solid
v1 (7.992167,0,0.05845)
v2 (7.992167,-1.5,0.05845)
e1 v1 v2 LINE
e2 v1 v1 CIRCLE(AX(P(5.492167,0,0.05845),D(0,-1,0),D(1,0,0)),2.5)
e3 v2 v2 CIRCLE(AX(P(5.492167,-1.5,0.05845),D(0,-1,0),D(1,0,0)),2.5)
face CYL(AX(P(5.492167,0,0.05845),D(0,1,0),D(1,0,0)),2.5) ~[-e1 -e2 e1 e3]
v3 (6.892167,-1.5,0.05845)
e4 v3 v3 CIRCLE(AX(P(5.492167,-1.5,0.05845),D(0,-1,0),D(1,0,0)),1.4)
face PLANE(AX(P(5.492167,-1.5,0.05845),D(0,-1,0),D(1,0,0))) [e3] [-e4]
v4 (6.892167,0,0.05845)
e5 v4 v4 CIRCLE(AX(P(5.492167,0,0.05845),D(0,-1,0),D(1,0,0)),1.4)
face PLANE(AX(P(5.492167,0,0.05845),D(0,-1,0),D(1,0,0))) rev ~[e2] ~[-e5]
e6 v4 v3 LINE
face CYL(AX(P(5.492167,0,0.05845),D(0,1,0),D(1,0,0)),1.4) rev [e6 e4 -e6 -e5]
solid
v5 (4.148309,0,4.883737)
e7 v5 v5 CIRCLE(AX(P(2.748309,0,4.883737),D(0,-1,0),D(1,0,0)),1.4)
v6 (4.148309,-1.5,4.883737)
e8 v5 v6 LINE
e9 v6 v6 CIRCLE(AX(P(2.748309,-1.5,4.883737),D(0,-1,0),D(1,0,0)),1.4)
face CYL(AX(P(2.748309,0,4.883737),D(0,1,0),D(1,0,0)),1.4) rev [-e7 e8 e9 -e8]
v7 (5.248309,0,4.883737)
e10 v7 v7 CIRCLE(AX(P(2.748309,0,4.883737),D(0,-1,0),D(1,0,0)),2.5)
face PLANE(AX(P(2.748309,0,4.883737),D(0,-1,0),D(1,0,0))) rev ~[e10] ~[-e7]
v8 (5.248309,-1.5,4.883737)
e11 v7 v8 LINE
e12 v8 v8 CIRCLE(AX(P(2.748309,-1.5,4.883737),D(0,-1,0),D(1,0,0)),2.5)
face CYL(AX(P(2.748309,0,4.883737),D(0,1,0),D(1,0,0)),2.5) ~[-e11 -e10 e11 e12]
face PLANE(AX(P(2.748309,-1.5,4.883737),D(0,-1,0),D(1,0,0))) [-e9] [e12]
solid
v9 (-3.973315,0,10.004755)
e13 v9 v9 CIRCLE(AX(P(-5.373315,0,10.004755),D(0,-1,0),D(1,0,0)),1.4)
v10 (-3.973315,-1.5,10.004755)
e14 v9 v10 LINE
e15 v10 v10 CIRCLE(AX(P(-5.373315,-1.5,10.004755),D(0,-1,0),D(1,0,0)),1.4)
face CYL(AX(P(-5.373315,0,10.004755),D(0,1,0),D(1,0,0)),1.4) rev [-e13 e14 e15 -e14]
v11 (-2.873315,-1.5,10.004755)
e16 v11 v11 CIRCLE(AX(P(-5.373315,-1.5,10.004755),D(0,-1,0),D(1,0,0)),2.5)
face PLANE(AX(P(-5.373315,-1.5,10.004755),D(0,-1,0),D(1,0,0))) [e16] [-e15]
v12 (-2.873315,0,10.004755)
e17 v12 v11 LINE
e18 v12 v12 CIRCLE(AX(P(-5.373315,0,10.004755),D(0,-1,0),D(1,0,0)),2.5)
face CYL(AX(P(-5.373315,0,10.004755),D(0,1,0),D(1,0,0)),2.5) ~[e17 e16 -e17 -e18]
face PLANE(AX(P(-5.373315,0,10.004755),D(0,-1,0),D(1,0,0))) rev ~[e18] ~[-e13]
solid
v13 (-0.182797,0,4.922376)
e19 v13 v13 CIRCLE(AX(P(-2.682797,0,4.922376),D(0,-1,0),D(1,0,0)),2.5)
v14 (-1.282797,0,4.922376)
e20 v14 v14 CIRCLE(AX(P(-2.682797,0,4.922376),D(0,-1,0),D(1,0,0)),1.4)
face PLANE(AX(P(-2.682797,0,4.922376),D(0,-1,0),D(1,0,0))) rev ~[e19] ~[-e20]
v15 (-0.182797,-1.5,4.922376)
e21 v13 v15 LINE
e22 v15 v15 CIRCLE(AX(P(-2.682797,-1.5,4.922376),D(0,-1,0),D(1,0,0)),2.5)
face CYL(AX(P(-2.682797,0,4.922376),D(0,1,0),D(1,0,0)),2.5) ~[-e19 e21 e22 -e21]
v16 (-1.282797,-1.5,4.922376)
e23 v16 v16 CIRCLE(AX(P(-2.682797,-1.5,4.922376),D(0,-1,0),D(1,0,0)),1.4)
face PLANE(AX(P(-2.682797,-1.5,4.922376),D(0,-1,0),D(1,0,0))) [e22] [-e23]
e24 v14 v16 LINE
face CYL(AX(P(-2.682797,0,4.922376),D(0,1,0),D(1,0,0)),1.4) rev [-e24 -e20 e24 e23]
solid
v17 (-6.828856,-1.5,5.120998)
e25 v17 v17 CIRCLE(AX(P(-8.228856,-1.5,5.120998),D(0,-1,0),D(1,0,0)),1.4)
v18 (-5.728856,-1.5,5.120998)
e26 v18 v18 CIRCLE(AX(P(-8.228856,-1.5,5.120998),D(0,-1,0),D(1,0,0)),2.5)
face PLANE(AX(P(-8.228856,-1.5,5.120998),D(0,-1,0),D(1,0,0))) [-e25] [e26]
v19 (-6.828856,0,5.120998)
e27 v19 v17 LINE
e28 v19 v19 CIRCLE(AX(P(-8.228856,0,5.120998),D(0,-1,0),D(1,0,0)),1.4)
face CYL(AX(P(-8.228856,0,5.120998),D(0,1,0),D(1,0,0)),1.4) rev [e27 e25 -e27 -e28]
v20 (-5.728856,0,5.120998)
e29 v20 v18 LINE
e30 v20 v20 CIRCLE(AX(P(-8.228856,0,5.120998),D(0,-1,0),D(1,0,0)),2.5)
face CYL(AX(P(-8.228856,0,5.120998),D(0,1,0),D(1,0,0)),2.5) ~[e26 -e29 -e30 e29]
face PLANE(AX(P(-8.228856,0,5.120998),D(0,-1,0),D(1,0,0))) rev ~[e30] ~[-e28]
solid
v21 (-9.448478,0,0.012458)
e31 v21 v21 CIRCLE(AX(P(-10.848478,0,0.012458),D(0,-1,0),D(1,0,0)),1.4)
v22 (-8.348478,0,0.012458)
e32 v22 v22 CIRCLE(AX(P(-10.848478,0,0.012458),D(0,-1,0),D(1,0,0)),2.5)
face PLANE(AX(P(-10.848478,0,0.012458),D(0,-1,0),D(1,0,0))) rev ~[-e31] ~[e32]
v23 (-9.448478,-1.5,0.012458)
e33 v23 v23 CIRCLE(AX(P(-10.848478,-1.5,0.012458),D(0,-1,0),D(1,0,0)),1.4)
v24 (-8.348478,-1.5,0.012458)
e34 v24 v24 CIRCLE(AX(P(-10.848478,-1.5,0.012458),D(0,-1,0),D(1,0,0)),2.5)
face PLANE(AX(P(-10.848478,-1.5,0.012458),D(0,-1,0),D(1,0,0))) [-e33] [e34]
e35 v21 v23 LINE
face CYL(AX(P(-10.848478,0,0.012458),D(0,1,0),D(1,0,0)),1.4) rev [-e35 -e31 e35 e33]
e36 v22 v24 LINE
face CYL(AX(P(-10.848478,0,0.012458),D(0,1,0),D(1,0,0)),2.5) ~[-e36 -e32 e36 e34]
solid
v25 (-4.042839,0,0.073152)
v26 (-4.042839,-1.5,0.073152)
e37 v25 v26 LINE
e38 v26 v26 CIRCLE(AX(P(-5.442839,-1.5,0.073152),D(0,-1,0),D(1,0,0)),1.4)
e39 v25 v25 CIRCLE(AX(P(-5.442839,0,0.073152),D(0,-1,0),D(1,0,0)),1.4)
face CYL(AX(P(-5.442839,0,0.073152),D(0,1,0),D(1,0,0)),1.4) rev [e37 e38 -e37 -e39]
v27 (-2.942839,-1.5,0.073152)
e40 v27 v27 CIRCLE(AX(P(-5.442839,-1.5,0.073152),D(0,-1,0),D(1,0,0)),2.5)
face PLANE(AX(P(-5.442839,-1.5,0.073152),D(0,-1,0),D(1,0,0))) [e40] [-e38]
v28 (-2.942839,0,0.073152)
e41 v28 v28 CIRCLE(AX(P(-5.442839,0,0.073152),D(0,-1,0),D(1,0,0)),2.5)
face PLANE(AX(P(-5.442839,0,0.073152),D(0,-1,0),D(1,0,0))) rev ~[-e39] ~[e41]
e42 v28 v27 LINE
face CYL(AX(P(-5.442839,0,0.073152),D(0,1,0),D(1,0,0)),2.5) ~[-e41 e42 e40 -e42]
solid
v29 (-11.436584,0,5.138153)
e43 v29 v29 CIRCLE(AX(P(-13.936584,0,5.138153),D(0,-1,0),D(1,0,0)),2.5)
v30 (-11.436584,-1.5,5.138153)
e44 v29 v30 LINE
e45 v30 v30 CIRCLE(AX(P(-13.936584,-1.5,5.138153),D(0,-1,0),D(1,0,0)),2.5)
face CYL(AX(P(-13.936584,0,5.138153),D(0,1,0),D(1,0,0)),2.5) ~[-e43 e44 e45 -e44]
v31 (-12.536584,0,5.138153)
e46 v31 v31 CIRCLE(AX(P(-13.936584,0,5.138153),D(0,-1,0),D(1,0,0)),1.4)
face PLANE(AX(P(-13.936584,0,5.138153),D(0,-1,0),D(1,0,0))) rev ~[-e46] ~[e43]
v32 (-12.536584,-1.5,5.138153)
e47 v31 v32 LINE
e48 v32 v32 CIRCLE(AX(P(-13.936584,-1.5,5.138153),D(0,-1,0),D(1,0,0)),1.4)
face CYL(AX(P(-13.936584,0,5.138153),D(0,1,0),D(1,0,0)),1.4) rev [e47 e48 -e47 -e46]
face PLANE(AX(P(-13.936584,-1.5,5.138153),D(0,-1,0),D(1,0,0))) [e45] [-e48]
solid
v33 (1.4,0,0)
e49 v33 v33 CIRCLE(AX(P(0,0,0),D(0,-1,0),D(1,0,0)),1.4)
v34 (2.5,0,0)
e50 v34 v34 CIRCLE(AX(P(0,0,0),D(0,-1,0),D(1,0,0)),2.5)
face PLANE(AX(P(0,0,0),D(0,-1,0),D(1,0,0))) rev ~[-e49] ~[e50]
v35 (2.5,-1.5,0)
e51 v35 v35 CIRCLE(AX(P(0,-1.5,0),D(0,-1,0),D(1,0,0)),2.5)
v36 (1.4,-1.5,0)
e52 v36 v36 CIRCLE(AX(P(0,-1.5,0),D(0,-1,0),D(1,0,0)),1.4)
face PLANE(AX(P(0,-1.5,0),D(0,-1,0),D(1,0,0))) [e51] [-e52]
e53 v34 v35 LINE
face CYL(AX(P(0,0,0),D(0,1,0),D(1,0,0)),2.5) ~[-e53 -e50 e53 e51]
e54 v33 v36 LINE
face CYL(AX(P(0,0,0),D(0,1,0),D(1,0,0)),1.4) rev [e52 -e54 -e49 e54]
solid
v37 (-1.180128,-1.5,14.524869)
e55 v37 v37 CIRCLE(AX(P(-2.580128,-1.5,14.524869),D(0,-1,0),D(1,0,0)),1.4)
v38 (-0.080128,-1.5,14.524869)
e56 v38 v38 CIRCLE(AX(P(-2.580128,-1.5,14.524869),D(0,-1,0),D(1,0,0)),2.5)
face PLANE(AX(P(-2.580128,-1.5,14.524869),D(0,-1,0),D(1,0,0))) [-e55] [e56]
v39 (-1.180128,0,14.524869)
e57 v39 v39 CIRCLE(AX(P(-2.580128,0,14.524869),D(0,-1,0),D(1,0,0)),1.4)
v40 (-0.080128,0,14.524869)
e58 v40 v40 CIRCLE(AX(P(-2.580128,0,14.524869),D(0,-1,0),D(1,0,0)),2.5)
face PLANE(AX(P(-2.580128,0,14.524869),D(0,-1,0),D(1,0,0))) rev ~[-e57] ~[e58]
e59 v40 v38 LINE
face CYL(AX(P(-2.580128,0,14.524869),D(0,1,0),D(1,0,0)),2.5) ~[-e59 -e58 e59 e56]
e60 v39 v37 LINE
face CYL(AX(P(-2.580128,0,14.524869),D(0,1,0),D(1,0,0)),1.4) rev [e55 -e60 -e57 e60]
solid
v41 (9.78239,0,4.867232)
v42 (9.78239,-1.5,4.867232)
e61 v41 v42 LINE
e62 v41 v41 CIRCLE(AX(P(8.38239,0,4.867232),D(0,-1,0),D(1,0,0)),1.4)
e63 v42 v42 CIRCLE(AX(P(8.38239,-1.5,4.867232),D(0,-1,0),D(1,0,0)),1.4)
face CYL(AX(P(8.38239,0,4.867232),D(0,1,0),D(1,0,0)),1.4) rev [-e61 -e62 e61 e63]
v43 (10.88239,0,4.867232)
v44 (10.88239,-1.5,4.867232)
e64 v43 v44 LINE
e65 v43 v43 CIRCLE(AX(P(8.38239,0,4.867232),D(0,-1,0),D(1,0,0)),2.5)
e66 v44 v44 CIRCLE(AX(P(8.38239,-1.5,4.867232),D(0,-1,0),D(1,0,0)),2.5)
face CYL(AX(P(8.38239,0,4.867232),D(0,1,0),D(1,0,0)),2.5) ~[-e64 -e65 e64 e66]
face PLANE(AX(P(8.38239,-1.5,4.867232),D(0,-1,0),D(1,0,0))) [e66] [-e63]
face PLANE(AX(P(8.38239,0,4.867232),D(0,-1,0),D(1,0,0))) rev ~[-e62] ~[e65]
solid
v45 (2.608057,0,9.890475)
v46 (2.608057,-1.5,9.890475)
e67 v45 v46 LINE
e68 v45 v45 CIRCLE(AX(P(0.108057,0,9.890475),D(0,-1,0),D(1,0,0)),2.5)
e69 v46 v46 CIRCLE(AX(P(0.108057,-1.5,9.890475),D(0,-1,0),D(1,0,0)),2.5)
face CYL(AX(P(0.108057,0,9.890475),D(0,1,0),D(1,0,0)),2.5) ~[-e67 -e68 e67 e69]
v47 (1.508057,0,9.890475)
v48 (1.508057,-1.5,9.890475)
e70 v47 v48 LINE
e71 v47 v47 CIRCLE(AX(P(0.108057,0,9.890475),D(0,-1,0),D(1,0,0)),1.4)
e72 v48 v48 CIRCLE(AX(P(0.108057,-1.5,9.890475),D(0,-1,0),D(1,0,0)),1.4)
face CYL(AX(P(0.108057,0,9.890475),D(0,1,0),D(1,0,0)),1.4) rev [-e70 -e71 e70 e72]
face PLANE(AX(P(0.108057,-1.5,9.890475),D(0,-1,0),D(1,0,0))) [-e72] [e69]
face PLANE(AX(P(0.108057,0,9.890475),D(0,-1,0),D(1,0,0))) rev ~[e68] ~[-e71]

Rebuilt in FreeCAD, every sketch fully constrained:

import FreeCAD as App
import Part
import Sketcher
Q = App.Units.Quantity

doc = App.newDocument("Part")
body = doc.addObject("PartDesign::Body", "Body")
body.AllowCompound = True

# Sketch on XZ plane
sketch1 = body.newObject("Sketcher::SketchObject", "Sketch")
sketch1.AttachmentSupport = (doc.getObject("XZ_Plane"), [""])
sketch1.MapMode = "FlatFace"
sketch1.addGeometry([
    Part.Circle(App.Vector(-13.9, 5.1, 0), App.Vector(0, 0, 1), 2.5),  # 0
    Part.Circle(App.Vector(-13.9, 5.1, 0), App.Vector(0, 0, 1), 1.4),  # 1
    Part.Circle(App.Vector(-8.2, 5.1, 0), App.Vector(0, 0, 1), 2.5),  # 2
    Part.Circle(App.Vector(-8.2, 5.1, 0), App.Vector(0, 0, 1), 1.4),  # 3
    Part.Circle(App.Vector(-5.4, 10, 0), App.Vector(0, 0, 1), 2.5),  # 4
    Part.Circle(App.Vector(-5.4, 10, 0), App.Vector(0, 0, 1), 1.4),  # 5
    Part.Circle(App.Vector(-2.6, 14.5, 0), App.Vector(0, 0, 1), 2.5),  # 6
    Part.Circle(App.Vector(-2.6, 14.5, 0), App.Vector(0, 0, 1), 1.4),  # 7
    Part.Circle(App.Vector(0.1, 9.9, 0), App.Vector(0, 0, 1), 2.5),  # 8
    Part.Circle(App.Vector(0.1, 9.9, 0), App.Vector(0, 0, 1), 1.4),  # 9
    Part.Circle(App.Vector(-2.7, 4.9, 0), App.Vector(0, 0, 1), 2.5),  # 10
    Part.Circle(App.Vector(-2.7, 4.9, 0), App.Vector(0, 0, 1), 1.4),  # 11
    Part.Circle(App.Vector(-10.8, 0, 0), App.Vector(0, 0, 1), 2.5),  # 12
    Part.Circle(App.Vector(-10.8, 0, 0), App.Vector(0, 0, 1), 1.4),  # 13
    Part.Circle(App.Vector(-5.4, 0.1, 0), App.Vector(0, 0, 1), 2.5),  # 14
    Part.Circle(App.Vector(-5.4, 0.1, 0), App.Vector(0, 0, 1), 1.4),  # 15
    Part.Circle(App.Vector(0, 0, 0), App.Vector(0, 0, 1), 2.5),  # 16
    Part.Circle(App.Vector(0, 0, 0), App.Vector(0, 0, 1), 1.4),  # 17
    Part.Circle(App.Vector(2.7, 4.9, 0), App.Vector(0, 0, 1), 2.5),  # 18
    Part.Circle(App.Vector(2.7, 4.9, 0), App.Vector(0, 0, 1), 1.4),  # 19
    Part.Circle(App.Vector(8.4, 4.9, 0), App.Vector(0, 0, 1), 2.5),  # 20
    Part.Circle(App.Vector(8.4, 4.9, 0), App.Vector(0, 0, 1), 1.4),  # 21
    Part.Circle(App.Vector(5.5, 0.1, 0), App.Vector(0, 0, 1), 2.5),  # 22
    Part.Circle(App.Vector(5.5, 0.1, 0), App.Vector(0, 0, 1), 1.4),  # 23
], False)
sketch1.addConstraint([
    Sketcher.Constraint("Coincident", 16, 3, -1, 1),
    Sketcher.Constraint("Coincident", 17, 3, -1, 1),
    Sketcher.Constraint("Coincident", 1, 3, 0, 3),
    Sketcher.Constraint("Coincident", 3, 3, 2, 3),
    Sketcher.Constraint("Coincident", 5, 3, 4, 3),
    Sketcher.Constraint("Coincident", 7, 3, 6, 3),
    Sketcher.Constraint("Coincident", 9, 3, 8, 3),
    Sketcher.Constraint("Coincident", 11, 3, 10, 3),
    Sketcher.Constraint("Coincident", 13, 3, 12, 3),
    Sketcher.Constraint("Coincident", 15, 3, 14, 3),
    Sketcher.Constraint("Coincident", 19, 3, 18, 3),
    Sketcher.Constraint("Coincident", 21, 3, 20, 3),
    Sketcher.Constraint("Coincident", 23, 3, 22, 3),
    Sketcher.Constraint("Equal", 0, 2),
    Sketcher.Constraint("Equal", 1, 3),
    Sketcher.Constraint("Equal", 2, 4),
    Sketcher.Constraint("Equal", 3, 5),
    Sketcher.Constraint("Equal", 4, 6),
    Sketcher.Constraint("Equal", 5, 7),
    Sketcher.Constraint("Equal", 6, 8),
    Sketcher.Constraint("Equal", 7, 9),
    Sketcher.Constraint("Equal", 8, 10),
    Sketcher.Constraint("Equal", 9, 11),
    Sketcher.Constraint("Equal", 10, 12),
    Sketcher.Constraint("Equal", 11, 13),
    Sketcher.Constraint("Equal", 12, 14),
    Sketcher.Constraint("Equal", 13, 15),
    Sketcher.Constraint("Equal", 14, 16),
    Sketcher.Constraint("Equal", 15, 17),
    Sketcher.Constraint("Equal", 16, 18),
    Sketcher.Constraint("Equal", 17, 19),
    Sketcher.Constraint("Equal", 18, 20),
    Sketcher.Constraint("Equal", 19, 21),
    Sketcher.Constraint("Equal", 20, 22),
    Sketcher.Constraint("Equal", 21, 23),
    Sketcher.Constraint("Diameter", 0, Q("5 mm")),
    Sketcher.Constraint("Diameter", 1, Q("2.8 mm")),
    Sketcher.Constraint("DistanceY", 0, 3, 4, 3, Q("4.866602 mm")),
    Sketcher.Constraint("DistanceY", 10, 3, 8, 3, Q("4.968099 mm")),
    Sketcher.Constraint("DistanceX", 6, 3, -1, 1, Q("2.580128 mm")),
    Sketcher.Constraint("DistanceY", -1, 1, 6, 3, Q("14.524869 mm")),
    Sketcher.Constraint("DistanceX", 14, 3, -1, 1, Q("5.442839 mm")),
    Sketcher.Constraint("DistanceY", -1, 1, 14, 3, Q("0.073152 mm")),
    Sketcher.Constraint("DistanceX", -1, 1, 18, 3, Q("2.748309 mm")),
    Sketcher.Constraint("DistanceX", -1, 1, 20, 3, Q("8.38239 mm")),
    Sketcher.Constraint("DistanceY", -1, 1, 20, 3, Q("4.867232 mm")),
    Sketcher.Constraint("DistanceY", -1, 1, 22, 3, Q("0.05845 mm")),
    Sketcher.Constraint("DistanceX", 2, 3, 4, 3, Q("2.855541 mm")),
    Sketcher.Constraint("DistanceX", 0, 3, 4, 3, Q("8.563269 mm")),
    Sketcher.Constraint("DistanceX", 2, 3, 6, 3, Q("5.648728 mm")),
    Sketcher.Constraint("DistanceY", 2, 3, 6, 3, Q("9.403871 mm")),
    Sketcher.Constraint("DistanceX", 4, 3, 8, 3, Q("5.481372 mm")),
    Sketcher.Constraint("DistanceY", 8, 3, 4, 3, Q("0.11428 mm")),
    Sketcher.Constraint("DistanceX", 2, 3, 10, 3, Q("5.546059 mm")),
    Sketcher.Constraint("DistanceX", 12, 3, 2, 3, Q("2.619622 mm")),
    Sketcher.Constraint("DistanceY", 12, 3, 2, 3, Q("5.10854 mm")),
    Sketcher.Constraint("DistanceY", 12, 3, 10, 3, Q("4.909918 mm")),
    Sketcher.Constraint("DistanceY", 18, 3, 10, 3, Q("0.038639 mm")),
    Sketcher.Constraint("DistanceX", 18, 3, 22, 3, Q("2.743858 mm")),
])
pad1 = body.newObject("PartDesign::Pad", "Pad")
pad1.Profile = sketch1
pad1.Length = 1.5

doc.recompute()
